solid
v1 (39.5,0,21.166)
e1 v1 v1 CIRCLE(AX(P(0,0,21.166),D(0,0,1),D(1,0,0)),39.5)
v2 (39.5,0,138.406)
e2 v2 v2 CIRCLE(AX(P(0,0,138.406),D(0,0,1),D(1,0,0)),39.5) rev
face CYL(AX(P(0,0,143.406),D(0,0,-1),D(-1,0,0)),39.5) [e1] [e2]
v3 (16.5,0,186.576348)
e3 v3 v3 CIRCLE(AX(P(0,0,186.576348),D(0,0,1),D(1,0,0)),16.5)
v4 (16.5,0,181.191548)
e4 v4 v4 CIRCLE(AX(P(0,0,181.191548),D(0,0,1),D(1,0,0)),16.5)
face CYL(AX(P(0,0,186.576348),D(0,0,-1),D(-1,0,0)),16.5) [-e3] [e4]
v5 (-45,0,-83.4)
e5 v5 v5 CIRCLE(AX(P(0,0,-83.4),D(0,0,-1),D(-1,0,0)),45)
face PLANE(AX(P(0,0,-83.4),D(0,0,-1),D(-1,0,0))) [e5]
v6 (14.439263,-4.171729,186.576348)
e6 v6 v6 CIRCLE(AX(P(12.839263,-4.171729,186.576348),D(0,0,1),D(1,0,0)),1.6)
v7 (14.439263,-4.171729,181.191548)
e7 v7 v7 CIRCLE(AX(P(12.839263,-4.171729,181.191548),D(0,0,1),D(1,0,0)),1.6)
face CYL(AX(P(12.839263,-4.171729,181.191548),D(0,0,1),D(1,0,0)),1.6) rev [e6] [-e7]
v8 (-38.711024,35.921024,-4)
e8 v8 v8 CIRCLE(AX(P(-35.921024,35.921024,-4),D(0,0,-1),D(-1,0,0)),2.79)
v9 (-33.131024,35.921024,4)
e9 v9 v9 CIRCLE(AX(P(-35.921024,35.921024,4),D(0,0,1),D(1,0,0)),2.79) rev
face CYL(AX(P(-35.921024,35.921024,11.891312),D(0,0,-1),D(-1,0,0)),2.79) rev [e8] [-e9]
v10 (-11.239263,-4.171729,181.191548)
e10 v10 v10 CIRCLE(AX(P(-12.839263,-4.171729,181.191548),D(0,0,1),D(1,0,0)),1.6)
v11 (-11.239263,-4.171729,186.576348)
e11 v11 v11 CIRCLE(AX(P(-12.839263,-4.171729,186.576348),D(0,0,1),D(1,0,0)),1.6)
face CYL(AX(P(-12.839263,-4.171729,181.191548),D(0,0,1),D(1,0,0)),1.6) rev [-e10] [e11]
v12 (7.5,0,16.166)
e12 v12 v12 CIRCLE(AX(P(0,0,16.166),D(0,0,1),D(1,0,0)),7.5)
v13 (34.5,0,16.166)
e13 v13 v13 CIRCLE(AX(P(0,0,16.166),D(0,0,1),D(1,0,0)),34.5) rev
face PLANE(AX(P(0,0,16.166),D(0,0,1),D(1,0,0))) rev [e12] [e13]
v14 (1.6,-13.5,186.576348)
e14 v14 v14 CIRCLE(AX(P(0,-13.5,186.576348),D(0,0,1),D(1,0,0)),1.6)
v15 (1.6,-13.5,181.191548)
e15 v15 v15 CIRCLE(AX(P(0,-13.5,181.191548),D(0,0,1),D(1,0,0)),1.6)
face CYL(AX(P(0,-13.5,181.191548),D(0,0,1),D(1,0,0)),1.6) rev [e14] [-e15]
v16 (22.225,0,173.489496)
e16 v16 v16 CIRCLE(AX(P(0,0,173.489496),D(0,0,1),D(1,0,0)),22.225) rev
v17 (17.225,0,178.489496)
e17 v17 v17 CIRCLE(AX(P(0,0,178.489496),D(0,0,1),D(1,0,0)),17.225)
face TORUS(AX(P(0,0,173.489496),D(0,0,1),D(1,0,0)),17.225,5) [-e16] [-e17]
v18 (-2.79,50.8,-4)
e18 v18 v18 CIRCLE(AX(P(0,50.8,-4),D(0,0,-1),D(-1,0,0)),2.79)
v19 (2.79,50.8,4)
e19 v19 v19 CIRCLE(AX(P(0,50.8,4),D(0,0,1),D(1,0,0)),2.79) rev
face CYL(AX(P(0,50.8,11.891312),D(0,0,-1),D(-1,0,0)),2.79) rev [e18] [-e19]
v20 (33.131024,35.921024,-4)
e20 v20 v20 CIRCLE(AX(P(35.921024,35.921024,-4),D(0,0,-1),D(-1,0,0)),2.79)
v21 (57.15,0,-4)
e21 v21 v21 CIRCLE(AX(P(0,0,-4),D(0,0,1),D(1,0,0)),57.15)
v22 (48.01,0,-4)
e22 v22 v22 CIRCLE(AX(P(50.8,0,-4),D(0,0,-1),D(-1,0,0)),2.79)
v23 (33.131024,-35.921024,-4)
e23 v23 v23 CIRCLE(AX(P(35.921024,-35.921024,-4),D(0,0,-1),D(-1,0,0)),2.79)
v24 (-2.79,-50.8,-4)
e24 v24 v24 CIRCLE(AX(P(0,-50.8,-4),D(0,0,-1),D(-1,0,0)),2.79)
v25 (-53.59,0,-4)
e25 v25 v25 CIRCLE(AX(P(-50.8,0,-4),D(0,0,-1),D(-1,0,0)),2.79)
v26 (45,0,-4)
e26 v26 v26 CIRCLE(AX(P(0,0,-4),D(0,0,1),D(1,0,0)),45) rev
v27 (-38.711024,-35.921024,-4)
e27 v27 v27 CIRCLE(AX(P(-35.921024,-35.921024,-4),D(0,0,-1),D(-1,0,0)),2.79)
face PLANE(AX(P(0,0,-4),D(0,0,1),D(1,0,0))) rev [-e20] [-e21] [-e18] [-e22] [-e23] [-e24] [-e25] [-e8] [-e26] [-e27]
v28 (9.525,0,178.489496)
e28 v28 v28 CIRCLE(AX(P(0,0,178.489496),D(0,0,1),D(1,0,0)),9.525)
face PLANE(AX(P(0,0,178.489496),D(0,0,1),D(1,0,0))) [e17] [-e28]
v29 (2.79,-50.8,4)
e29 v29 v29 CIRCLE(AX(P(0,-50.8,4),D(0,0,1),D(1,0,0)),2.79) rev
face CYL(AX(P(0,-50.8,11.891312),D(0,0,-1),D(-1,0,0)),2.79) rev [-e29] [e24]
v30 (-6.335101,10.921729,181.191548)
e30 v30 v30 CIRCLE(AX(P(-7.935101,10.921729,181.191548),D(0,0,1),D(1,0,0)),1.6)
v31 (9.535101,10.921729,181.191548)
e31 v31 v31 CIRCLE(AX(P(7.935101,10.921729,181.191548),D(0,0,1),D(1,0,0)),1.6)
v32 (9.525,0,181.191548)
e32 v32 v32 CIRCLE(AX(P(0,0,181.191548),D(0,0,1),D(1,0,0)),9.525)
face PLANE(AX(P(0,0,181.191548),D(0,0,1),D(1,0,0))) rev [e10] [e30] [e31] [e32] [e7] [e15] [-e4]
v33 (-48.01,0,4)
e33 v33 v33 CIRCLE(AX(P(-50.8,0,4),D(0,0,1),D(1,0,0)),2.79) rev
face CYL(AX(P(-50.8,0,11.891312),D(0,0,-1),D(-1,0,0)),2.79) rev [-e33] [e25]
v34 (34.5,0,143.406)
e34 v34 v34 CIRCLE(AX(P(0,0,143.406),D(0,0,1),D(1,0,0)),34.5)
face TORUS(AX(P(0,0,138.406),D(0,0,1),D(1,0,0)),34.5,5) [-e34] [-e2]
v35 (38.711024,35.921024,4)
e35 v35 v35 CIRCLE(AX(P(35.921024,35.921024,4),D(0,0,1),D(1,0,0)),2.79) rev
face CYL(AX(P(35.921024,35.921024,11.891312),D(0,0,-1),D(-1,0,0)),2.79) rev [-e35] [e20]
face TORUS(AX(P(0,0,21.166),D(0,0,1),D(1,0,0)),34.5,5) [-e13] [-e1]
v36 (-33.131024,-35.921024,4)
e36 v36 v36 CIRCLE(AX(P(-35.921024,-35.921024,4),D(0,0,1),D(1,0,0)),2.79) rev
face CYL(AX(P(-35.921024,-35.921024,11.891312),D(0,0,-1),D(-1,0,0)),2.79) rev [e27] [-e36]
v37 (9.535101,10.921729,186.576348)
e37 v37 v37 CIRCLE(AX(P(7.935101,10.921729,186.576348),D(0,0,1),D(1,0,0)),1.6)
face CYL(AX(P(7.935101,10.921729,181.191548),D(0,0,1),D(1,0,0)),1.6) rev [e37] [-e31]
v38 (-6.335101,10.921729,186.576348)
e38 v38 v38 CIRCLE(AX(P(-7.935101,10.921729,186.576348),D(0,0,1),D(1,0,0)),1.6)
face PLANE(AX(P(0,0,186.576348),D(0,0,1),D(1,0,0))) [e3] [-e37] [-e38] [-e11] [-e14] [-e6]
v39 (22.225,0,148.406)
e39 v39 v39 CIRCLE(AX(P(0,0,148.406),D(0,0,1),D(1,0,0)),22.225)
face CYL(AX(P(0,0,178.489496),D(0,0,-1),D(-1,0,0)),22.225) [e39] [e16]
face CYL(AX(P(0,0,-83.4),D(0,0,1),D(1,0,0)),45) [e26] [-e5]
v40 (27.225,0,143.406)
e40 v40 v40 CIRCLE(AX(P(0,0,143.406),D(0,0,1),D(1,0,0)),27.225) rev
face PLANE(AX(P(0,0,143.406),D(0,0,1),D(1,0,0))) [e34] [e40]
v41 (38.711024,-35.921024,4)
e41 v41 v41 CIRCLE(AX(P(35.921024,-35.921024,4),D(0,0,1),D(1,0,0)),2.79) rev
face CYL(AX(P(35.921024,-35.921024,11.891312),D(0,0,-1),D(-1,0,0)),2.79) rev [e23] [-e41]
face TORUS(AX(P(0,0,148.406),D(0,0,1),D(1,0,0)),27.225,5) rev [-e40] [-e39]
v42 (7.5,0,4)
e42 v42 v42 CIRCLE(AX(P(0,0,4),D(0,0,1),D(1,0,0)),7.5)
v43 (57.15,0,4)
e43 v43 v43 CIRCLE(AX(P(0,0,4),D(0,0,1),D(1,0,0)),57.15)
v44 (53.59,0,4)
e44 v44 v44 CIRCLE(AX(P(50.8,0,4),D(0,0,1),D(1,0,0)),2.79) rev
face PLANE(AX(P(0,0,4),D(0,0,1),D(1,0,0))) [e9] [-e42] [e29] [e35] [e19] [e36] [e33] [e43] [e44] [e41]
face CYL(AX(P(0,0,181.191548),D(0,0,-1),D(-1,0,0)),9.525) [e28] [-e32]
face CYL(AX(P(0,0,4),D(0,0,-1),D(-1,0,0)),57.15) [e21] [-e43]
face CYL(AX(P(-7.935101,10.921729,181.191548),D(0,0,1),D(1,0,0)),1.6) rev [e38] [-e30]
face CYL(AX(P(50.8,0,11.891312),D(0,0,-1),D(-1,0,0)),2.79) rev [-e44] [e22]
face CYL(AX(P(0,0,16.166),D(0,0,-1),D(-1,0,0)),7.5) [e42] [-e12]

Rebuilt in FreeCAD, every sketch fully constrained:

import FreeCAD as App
import Part
import Sketcher


def edges_at(feature, points):
    """Names of the edges that pass closest to the given points."""
    edges = feature.Shape.Edges
    near = lambda p: min(range(len(edges)), key=lambda i: edges[i].distToShape(Part.Vertex(*p))[0])
    return sorted({f"Edge{near(p) + 1}" for p in points})

doc = App.newDocument("Part")
body = doc.addObject("PartDesign::Body", "Body")

# Sketch on XY plane
sketch1 = body.newObject("Sketcher::SketchObject", "Sketch")
sketch1.AttachmentSupport = (doc.getObject("XY_Plane"), [""])
sketch1.MapMode = "FlatFace"
sketch1.addGeometry(Part.Circle(App.Vector(0, 0, 0), App.Vector(0, 0, 1), 57.15), False)
sketch1.addConstraint(Sketcher.Constraint("Coincident", 0, 3, -1, 1))
sketch1.addConstraint(Sketcher.Constraint("Diameter", 0, 114.3))
pad1 = body.newObject("PartDesign::Pad", "Pad")
pad1.Profile = sketch1
pad1.Length = 8
pad1.Midplane = True

# Sketch on XY plane
sketch2 = body.newObject("Sketcher::SketchObject", "Sketch001")
sketch2.AttachmentSupport = (doc.getObject("XY_Plane"), [""])
sketch2.MapMode = "FlatFace"
sketch2.AttachmentOffset = App.Placement(App.Vector(0, 0, 4), App.Rotation())
sketch2.addGeometry(Part.Circle(App.Vector(0, 0, 0), App.Vector(0, 0, 1), 7.5), False)
sketch2.addConstraint(Sketcher.Constraint("Coincident", 0, 3, -1, 1))
sketch2.addConstraint(Sketcher.Constraint("Diameter", 0, 15.0))
pad2 = body.newObject("PartDesign::Pad", "Pad001")
pad2.Profile = sketch2
pad2.Length = 12.166

# Sketch on XY plane
sketch3 = body.newObject("Sketcher::SketchObject", "Sketch002")
sketch3.AttachmentSupport = (doc.getObject("XY_Plane"), [""])
sketch3.MapMode = "FlatFace"
sketch3.AttachmentOffset = App.Placement(App.Vector(0, 0, 16.166), App.Rotation())
sketch3.addGeometry(Part.Circle(App.Vector(0, 0, 0), App.Vector(0, 0, 1), 39.5), False)
sketch3.addConstraint(Sketcher.Constraint("Coincident", 0, 3, -1, 1))
sketch3.addConstraint(Sketcher.Constraint("Diameter", 0, 79.0))
pad3 = body.newObject("PartDesign::Pad", "Pad002")
pad3.Profile = sketch3
pad3.Length = 127.24

# Sketch on XY plane
sketch4 = body.newObject("Sketcher::SketchObject", "Sketch003")
sketch4.AttachmentSupport = (doc.getObject("XY_Plane"), [""])
sketch4.MapMode = "FlatFace"
sketch4.AttachmentOffset = App.Placement(App.Vector(0, 0, 143.406), App.Rotation())
sketch4.addGeometry(Part.Circle(App.Vector(0, 0, 0), App.Vector(0, 0, 1), 22.225), False)
sketch4.addConstraint(Sketcher.Constraint("Coincident", 0, 3, -1, 1))
sketch4.addConstraint(Sketcher.Constraint("Diameter", 0, 44.45))
pad4 = body.newObject("PartDesign::Pad", "Pad003")
pad4.Profile = sketch4
pad4.Length = 35.083496

# Sketch on XY plane
sketch5 = body.newObject("Sketcher::SketchObject", "Sketch004")
sketch5.AttachmentSupport = (doc.getObject("XY_Plane"), [""])
sketch5.MapMode = "FlatFace"
sketch5.AttachmentOffset = App.Placement(App.Vector(0, 0, 178.489496), App.Rotation())
sketch5.addGeometry(Part.Circle(App.Vector(0, 0, 0), App.Vector(0, 0, 1), 9.525), False)
sketch5.addConstraint(Sketcher.Constraint("Coincident", 0, 3, -1, 1))
sketch5.addConstraint(Sketcher.Constraint("Diameter", 0, 19.05))
pad5 = body.newObject("PartDesign::Pad", "Pad004")
pad5.Profile = sketch5
pad5.Length = 2.702052

# Sketch on XY plane
sketch6 = body.newObject("Sketcher::SketchObject", "Sketch005")
sketch6.AttachmentSupport = (doc.getObject("XY_Plane"), [""])
sketch6.MapMode = "FlatFace"
sketch6.AttachmentOffset = App.Placement(App.Vector(0, 0, 181.191548), App.Rotation())
sketch6.addGeometry(Part.Circle(App.Vector(0, 0, 0), App.Vector(0, 0, 1), 16.5), False)
sketch6.addConstraint(Sketcher.Constraint("Coincident", 0, 3, -1, 1))
sketch6.addConstraint(Sketcher.Constraint("Diameter", 0, 33.0))
pad6 = body.newObject("PartDesign::Pad", "Pad005")
pad6.Profile = sketch6
pad6.Length = 5.3848

# Sketch on XY plane
sketch7 = body.newObject("Sketcher::SketchObject", "Sketch006")
sketch7.AttachmentSupport = (doc.getObject("XY_Plane"), [""])
sketch7.MapMode = "FlatFace"
sketch7.AttachmentOffset = App.Placement(App.Vector(0, 0, 186.576348), App.Rotation())
sketch7.addGeometry(Part.Circle(App.Vector(-7.935101, 10.921729, 0), App.Vector(0, 0, 1), 1.6), False)
sketch7.addGeometry(Part.Circle(App.Vector(7.935101, 10.921729, 0), App.Vector(0, 0, 1), 1.6), False)
sketch7.addGeometry(Part.Circle(App.Vector(12.839263, -4.171729, 0), App.Vector(0, 0, 1), 1.6), False)
sketch7.addGeometry(Part.Circle(App.Vector(0, -13.5, 0), App.Vector(0, 0, 1), 1.6), False)
sketch7.addGeometry(Part.Circle(App.Vector(-12.839263, -4.171729, 0), App.Vector(0, 0, 1), 1.6), False)
sketch7.addConstraint(Sketcher.Constraint("Equal", 0, 1))
sketch7.addConstraint(Sketcher.Constraint("Equal", 1, 2))
sketch7.addConstraint(Sketcher.Constraint("Equal", 2, 3))
sketch7.addConstraint(Sketcher.Constraint("Equal", 3, 4))
sketch7.addConstraint(Sketcher.Constraint("Symmetric", 0, 3, 1, 3, -2))
sketch7.addConstraint(Sketcher.Constraint("Symmetric", 2, 3, 4, 3, -2))
sketch7.addConstraint(Sketcher.Constraint("PointOnObject", 3, 3, -2))
sketch7.addConstraint(Sketcher.Constraint("Diameter", 0, 3.2))
sketch7.addConstraint(Sketcher.Constraint("DistanceY", 3, 3, -1, 1, 13.5))
sketch7.addConstraint(Sketcher.Constraint("DistanceX", 0, 3, -1, 1, 7.935101))
sketch7.addConstraint(Sketcher.Constraint("DistanceY", -1, 1, 0, 3, 10.921729))
sketch7.addConstraint(Sketcher.Constraint("DistanceY", 2, 3, -1, 1, 4.171729))
sketch7.addConstraint(Sketcher.Constraint("DistanceX", -1, 1, 2, 3, 12.839263))
pocket1 = body.newObject("PartDesign::Pocket", "Pocket")
pocket1.Profile = sketch7
pocket1.Length = 5.3848

# Sketch on XY plane
sketch8 = body.newObject("Sketcher::SketchObject", "Sketch007")
sketch8.AttachmentSupport = (doc.getObject("XY_Plane"), [""])
sketch8.MapMode = "FlatFace"
sketch8.AttachmentOffset = App.Placement(App.Vector(0, 0, -4), App.Rotation())
sketch8.addGeometry(Part.Circle(App.Vector(0, 50.8, 0), App.Vector(0, 0, 1), 2.79), False)
sketch8.addGeometry(Part.Circle(App.Vector(-35.921024, 35.921024, 0), App.Vector(0, 0, 1), 2.79), False)
sketch8.addGeometry(Part.Circle(App.Vector(-50.8, 0, 0), App.Vector(0, 0, 1), 2.79), False)
sketch8.addGeometry(Part.Circle(App.Vector(-35.921024, -35.921024, 0), App.Vector(0, 0, 1), 2.79), False)
sketch8.addGeometry(Part.Circle(App.Vector(0, -50.8, 0), App.Vector(0, 0, 1), 2.79), False)
sketch8.addGeometry(Part.Circle(App.Vector(35.921024, -35.921024, 0), App.Vector(0, 0, 1), 2.79), False)
sketch8.addGeometry(Part.Circle(App.Vector(50.8, 0, 0), App.Vector(0, 0, 1), 2.79), False)
sketch8.addGeometry(Part.Circle(App.Vector(35.921024, 35.921024, 0), App.Vector(0, 0, 1), 2.79), False)
sketch8.addConstraint(Sketcher.Constraint("Equal", 0, 1))
sketch8.addConstraint(Sketcher.Constraint("Equal", 1, 2))
sketch8.addConstraint(Sketcher.Constraint("Equal", 2, 3))
sketch8.addConstraint(Sketcher.Constraint("Equal", 3, 4))
sketch8.addConstraint(Sketcher.Constraint("Equal", 4, 5))
sketch8.addConstraint(Sketcher.Constraint("Equal", 5, 6))
sketch8.addConstraint(Sketcher.Constraint("Equal", 6, 7))
sketch8.addConstraint(Sketcher.Constraint("Symmetric", 0, 3, 4, 3, -1, 1))
sketch8.addConstraint(Sketcher.Constraint("Symmetric", 1, 3, 5, 3, -1, 1))
sketch8.addConstraint(Sketcher.Constraint("Symmetric", 2, 3, 6, 3, -1, 1))
sketch8.addConstraint(Sketcher.Constraint("Symmetric", 3, 3, 7, 3, -1, 1))
sketch8.addConstraint(Sketcher.Constraint("Symmetric", 3, 3, 5, 3, -2))
sketch8.addConstraint(Sketcher.Constraint("PointOnObject", 0, 3, -2))
sketch8.addConstraint(Sketcher.Constraint("PointOnObject", 2, 3, -1))
sketch8.addConstraint(Sketcher.Constraint("Diameter", 0, 5.58))
sketch8.addConstraint(Sketcher.Constraint("DistanceY", -1, 1, 0, 3, 50.8))
sketch8.addConstraint(Sketcher.Constraint("DistanceX", 2, 3, -1, 1, 50.8))
sketch8.addConstraint(Sketcher.Constraint("DistanceY", 3, 3, 1, 3, 71.842049))
sketch8.addConstraint(Sketcher.Constraint("DistanceX", 3, 3, 5, 3, 71.842049))
pocket2 = body.newObject("PartDesign::Pocket", "Pocket001")
pocket2.Profile = sketch8
pocket2.Length = 8
pocket2.Reversed = True

# Sketch on XY plane
sketch9 = body.newObject("Sketcher::SketchObject", "Sketch008")
sketch9.AttachmentSupport = (doc.getObject("XY_Plane"), [""])
sketch9.MapMode = "FlatFace"
sketch9.AttachmentOffset = App.Placement(App.Vector(0, 0, -4), App.Rotation())
sketch9.addGeometry(Part.Circle(App.Vector(0, 0, 0), App.Vector(0, 0, 1), 45), False)
sketch9.addConstraint(Sketcher.Constraint("Coincident", 0, 3, -1, 1))
sketch9.addConstraint(Sketcher.Constraint("Diameter", 0, 90.0))
pad7 = body.newObject("PartDesign::Pad", "Pad006")
pad7.Profile = sketch9
pad7.Length = 79.4
pad7.Reversed = True
doc.recompute()

fillet = body.newObject("PartDesign::Fillet", "Fillet")
fillet.Base = (pad7, edges_at(pad7, [
    (-39.5, 0, 143.406),
    (-22.225, 0, 143.406),
    (-22.225, 0, 178.489),
    (-39.5, 0, 16.166),
]))
fillet.Radius = 5

doc.recompute()
